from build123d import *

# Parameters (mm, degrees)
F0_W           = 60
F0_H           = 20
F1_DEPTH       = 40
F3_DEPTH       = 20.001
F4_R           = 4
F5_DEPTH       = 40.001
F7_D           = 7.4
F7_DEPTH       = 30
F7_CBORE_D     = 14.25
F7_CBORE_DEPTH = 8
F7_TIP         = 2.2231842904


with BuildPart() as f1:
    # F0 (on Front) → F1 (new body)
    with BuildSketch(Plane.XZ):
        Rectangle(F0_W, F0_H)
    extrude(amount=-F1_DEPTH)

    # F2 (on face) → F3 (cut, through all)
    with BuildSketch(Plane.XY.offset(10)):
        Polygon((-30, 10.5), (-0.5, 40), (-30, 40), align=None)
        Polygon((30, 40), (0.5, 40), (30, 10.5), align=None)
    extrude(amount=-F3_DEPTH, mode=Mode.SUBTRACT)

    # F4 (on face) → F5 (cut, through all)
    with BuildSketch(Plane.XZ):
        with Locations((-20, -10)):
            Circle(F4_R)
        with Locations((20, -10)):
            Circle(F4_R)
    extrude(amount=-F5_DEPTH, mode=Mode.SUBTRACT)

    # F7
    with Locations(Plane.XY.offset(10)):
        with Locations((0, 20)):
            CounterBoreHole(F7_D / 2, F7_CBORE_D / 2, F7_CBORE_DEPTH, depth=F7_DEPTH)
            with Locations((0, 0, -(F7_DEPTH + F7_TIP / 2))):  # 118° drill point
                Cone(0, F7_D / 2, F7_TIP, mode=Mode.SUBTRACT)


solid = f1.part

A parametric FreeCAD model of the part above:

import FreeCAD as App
import Part
import Sketcher

doc = App.newDocument("Part")
body = doc.addObject("PartDesign::Body", "Body")

sketch1 = body.newObject("Sketcher::SketchObject", "Sketch")
sketch1.AttachmentSupport = (doc.getObject("XZ_Plane"), [""])
sketch1.MapMode = "FlatFace"
sketch1.addGeometry(Part.LineSegment(App.Vector(-30, 10, 0), App.Vector(-30, -10, 0)), False)
sketch1.addGeometry(Part.LineSegment(App.Vector(-30, -10, 0), App.Vector(30, -10, 0)), False)
sketch1.addGeometry(Part.LineSegment(App.Vector(30, -10, 0), App.Vector(30, 10, 0)), False)
sketch1.addGeometry(Part.LineSegment(App.Vector(30, 10, 0), App.Vector(-30, 10, 0)), False)
sketch1.addConstraint(Sketcher.Constraint("Coincident", 0, 2, 1, 1))
sketch1.addConstraint(Sketcher.Constraint("Coincident", 1, 2, 2, 1))
sketch1.addConstraint(Sketcher.Constraint("Coincident", 2, 2, 3, 1))
sketch1.addConstraint(Sketcher.Constraint("Coincident", 3, 2, 0, 1))
sketch1.addConstraint(Sketcher.Constraint("Vertical", 0))
sketch1.addConstraint(Sketcher.Constraint("Horizontal", 1))
sketch1.addConstraint(Sketcher.Constraint("Vertical", 2))
sketch1.addConstraint(Sketcher.Constraint("Horizontal", 3))
sketch1.addConstraint(Sketcher.Constraint("Symmetric", 0, 2, 2, 2, -1, 1))
sketch1.addConstraint(Sketcher.Constraint("DistanceX", 1, 1, 1, 2, 60.0))
sketch1.addConstraint(Sketcher.Constraint("DistanceY", 0, 2, 0, 1, 20.0))
pad1 = body.newObject("PartDesign::Pad", "Pad")
pad1.Profile = sketch1
pad1.Length = 40
pad1.Reversed = True

sketch2 = body.newObject("Sketcher::SketchObject", "Sketch001")
sketch2.AttachmentSupport = (doc.getObject("XY_Plane"), [""])
sketch2.MapMode = "FlatFace"
sketch2.AttachmentOffset = App.Placement(App.Vector(0, 0, 10), App.Rotation())
sketch2.addGeometry(Part.LineSegment(App.Vector(-30, 10.5, 0), App.Vector(-0.5, 40, 0)), False)
sketch2.addGeometry(Part.LineSegment(App.Vector(-0.5, 40, 0), App.Vector(-30, 40, 0)), False)
sketch2.addGeometry(Part.LineSegment(App.Vector(-30, 40, 0), App.Vector(-30, 10.5, 0)), False)
sketch2.addGeometry(Part.LineSegment(App.Vector(30, 40, 0), App.Vector(0.5, 40, 0)), False)
sketch2.addGeometry(Part.LineSegment(App.Vector(0.5, 40, 0), App.Vector(30, 10.5, 0)), False)
sketch2.addGeometry(Part.LineSegment(App.Vector(30, 10.5, 0), App.Vector(30, 40, 0)), False)
sketch2.addConstraint(Sketcher.Constraint("Coincident", 0, 2, 1, 1))
sketch2.addConstraint(Sketcher.Constraint("Coincident", 1, 2, 2, 1))
sketch2.addConstraint(Sketcher.Constraint("Coincident", 2, 2, 0, 1))
sketch2.addConstraint(Sketcher.Constraint("Coincident", 3, 2, 4, 1))
sketch2.addConstraint(Sketcher.Constraint("Coincident", 4, 2, 5, 1))
sketch2.addConstraint(Sketcher.Constraint("Coincident", 5, 2, 3, 1))
sketch2.addConstraint(Sketcher.Constraint("Horizontal", 1))
sketch2.addConstraint(Sketcher.Constraint("Vertical", 2))
sketch2.addConstraint(Sketcher.Constraint("Horizontal", 3))
sketch2.addConstraint(Sketcher.Constraint("Vertical", 5))
sketch2.addConstraint(Sketcher.Constraint("Symmetric", 0, 2, 3, 2, -2))
sketch2.addConstraint(Sketcher.Constraint("Symmetric", 2, 2, 4, 2, -2))
sketch2.addConstraint(Sketcher.Constraint("Perpendicular", 0, 4))
sketch2.addConstraint(Sketcher.Constraint("DistanceX", 1, 2, 1, 1, 29.5))
sketch2.addConstraint(Sketcher.Constraint("DistanceY", -1, 1, 0, 2, 40.0))
sketch2.addConstraint(Sketcher.Constraint("DistanceX", 1, 2, -1, 1, 30.0))
pocket1 = body.newObject("PartDesign::Pocket", "Pocket")
pocket1.Profile = sketch2
pocket1.Type = "ThroughAll"

sketch3 = body.newObject("Sketcher::SketchObject", "Sketch002")
sketch3.AttachmentSupport = (doc.getObject("XZ_Plane"), [""])
sketch3.MapMode = "FlatFace"
sketch3.addGeometry(Part.Circle(App.Vector(-20, -10, 0), App.Vector(0, 0, 1), 4), False)
sketch3.addGeometry(Part.Circle(App.Vector(20, -10, 0), App.Vector(0, 0, 1), 4), False)
sketch3.addConstraint(Sketcher.Constraint("Equal", 0, 1))
sketch3.addConstraint(Sketcher.Constraint("Symmetric", 0, 3, 1, 3, -2))
sketch3.addConstraint(Sketcher.Constraint("Diameter", 0, 8.0))
sketch3.addConstraint(Sketcher.Constraint("DistanceX", 0, 3, -1, 1, 20.0))
sketch3.addConstraint(Sketcher.Constraint("DistanceY", 0, 3, -1, 1, 10.0))
pocket2 = body.newObject("PartDesign::Pocket", "Pocket001")
pocket2.Profile = sketch3
pocket2.Type = "ThroughAll"

sketch4 = body.newObject("Sketcher::SketchObject", "Sketch003")
sketch4.AttachmentSupport = (doc.getObject("XY_Plane"), [""])
sketch4.MapMode = "FlatFace"
sketch4.AttachmentOffset = App.Placement(App.Vector(0, 0, 10), App.Rotation())
sketch4.addGeometry(Part.Circle(App.Vector(0, 20, 0), App.Vector(0, 0, 1), 3.7), False)
sketch4.addConstraint(Sketcher.Constraint("PointOnObject", 0, 3, -2))
sketch4.addConstraint(Sketcher.Constraint("Diameter", 0, 7.4))
sketch4.addConstraint(Sketcher.Constraint("DistanceY", -1, 1, 0, 3, 20.0))
doc.recompute()
hole = body.newObject("PartDesign::Hole", "Hole")
hole.Profile = sketch4
hole.ThreadType = "None"
hole.Diameter = 7.4
hole.DepthType = "Dimension"
hole.Depth = 30
hole.DrillPoint = "Angled"
hole.DrillPointAngle = 118
hole.HoleCutType = "Counterbore"
hole.HoleCutDiameter = 14.25
hole.HoleCutDepth = 8

doc.recompute()
